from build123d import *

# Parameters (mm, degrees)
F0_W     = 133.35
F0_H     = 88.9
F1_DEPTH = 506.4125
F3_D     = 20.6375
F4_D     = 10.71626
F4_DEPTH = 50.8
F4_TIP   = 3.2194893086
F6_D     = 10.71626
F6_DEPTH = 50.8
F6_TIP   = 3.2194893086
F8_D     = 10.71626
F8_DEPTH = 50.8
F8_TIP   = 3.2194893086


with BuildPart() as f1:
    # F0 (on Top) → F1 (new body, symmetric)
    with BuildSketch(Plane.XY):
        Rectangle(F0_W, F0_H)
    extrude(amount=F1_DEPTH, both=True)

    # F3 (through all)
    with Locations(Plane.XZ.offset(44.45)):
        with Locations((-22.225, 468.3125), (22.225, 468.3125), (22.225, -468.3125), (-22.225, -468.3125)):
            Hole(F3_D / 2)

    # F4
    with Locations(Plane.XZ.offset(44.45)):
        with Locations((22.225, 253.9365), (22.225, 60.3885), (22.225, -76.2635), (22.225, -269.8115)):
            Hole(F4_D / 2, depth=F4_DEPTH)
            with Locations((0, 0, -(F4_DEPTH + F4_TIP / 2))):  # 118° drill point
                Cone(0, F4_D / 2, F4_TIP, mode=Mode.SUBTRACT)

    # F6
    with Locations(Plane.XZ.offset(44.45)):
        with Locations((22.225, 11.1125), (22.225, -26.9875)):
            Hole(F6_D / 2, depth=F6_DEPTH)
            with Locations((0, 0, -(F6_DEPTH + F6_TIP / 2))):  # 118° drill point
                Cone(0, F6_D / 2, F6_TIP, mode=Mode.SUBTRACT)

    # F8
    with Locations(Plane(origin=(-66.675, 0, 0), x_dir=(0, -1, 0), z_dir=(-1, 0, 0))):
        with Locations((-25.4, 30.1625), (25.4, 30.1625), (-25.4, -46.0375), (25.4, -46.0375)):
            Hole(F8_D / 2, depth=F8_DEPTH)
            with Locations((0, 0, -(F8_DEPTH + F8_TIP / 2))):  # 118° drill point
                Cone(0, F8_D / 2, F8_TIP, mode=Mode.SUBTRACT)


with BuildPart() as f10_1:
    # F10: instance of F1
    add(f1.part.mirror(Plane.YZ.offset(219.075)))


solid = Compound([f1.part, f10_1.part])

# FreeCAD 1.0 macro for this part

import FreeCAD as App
import Part
import Sketcher

V = App.Vector
Q = App.Units.Quantity

doc = App.newDocument("Part")
body = doc.addObject("PartDesign::Body", "Body")

# Sketch on XY plane
sketch1 = body.newObject("Sketcher::SketchObject", "Sketch")
sketch1.AttachmentSupport = (doc.getObject("XY_Plane"), [""])
sketch1.MapMode = "FlatFace"
sketch1.addGeometry([
    Part.LineSegment(V(-67, 44, 0), V(-67, -44, 0)),
    Part.LineSegment(V(-67, -44, 0), V(67, -44, 0)),
    Part.LineSegment(V(67, -44, 0), V(67, 44, 0)),
    Part.LineSegment(V(67, 44, 0), V(-67, 44, 0)),
], False)
sketch1.addConstraint([
    Sketcher.Constraint("Coincident", 0, 2, 1, 1),
    Sketcher.Constraint("Coincident", 1, 2, 2, 1),
    Sketcher.Constraint("Coincident", 2, 2, 3, 1),
    Sketcher.Constraint("Coincident", 3, 2, 0, 1),
    Sketcher.Constraint("Vertical", 0),
    Sketcher.Constraint("Horizontal", 1),
    Sketcher.Constraint("Vertical", 2),
    Sketcher.Constraint("Horizontal", 3),
    Sketcher.Constraint("Symmetric", 0, 2, 2, 2, -1, 1),
    Sketcher.Constraint("DistanceY", 0, 2, 0, 1, Q("3.5 in")),
    Sketcher.Constraint("DistanceX", 1, 1, 1, 2, Q("5.25 in")),
])
pad1 = body.newObject("PartDesign::Pad", "Pad")
pad1.Profile = sketch1
pad1.Length = Q("39.875 in")
pad1.Midplane = True

# Sketch on XZ plane
sketch2 = body.newObject("Sketcher::SketchObject", "Sketch001")
sketch2.AttachmentSupport = (doc.getObject("XZ_Plane"), [""])
sketch2.MapMode = "FlatFace"
sketch2.AttachmentOffset = App.Placement(V(0, 0, 1.75 * 25.4), App.Rotation())
sketch2.addGeometry([
    Part.Circle(V(-22, 468, 0), V(0, 0, 1), 10),
    Part.Circle(V(22, 468, 0), V(0, 0, 1), 10),
    Part.Circle(V(22, -468, 0), V(0, 0, 1), 10),
    Part.Circle(V(-22, -468, 0), V(0, 0, 1), 10),
], False)
sketch2.addConstraint([
    Sketcher.Constraint("Equal", 0, 1),
    Sketcher.Constraint("Equal", 1, 2),
    Sketcher.Constraint("Equal", 2, 3),
    Sketcher.Constraint("Symmetric", 0, 3, 2, 3, -1, 1),
    Sketcher.Constraint("Symmetric", 1, 3, 3, 3, -1, 1),
    Sketcher.Constraint("Symmetric", 0, 3, 1, 3, -2),
    Sketcher.Constraint("Diameter", 0, Q("0.8125 in")),
    Sketcher.Constraint("DistanceX", 0, 3, 1, 3, Q("1.75 in")),
    Sketcher.Constraint("DistanceY", -1, 1, 0, 3, Q("18.4375 in")),
])
doc.recompute()
hole = body.newObject("PartDesign::Hole", "Hole")
hole.Profile = sketch2
hole.ThreadType = "None"
hole.Diameter = Q("0.8125 in")
hole.DepthType = "ThroughAll"

# Sketch on XZ plane
sketch3 = body.newObject("Sketcher::SketchObject", "Sketch002")
sketch3.AttachmentSupport = (doc.getObject("XZ_Plane"), [""])
sketch3.MapMode = "FlatFace"
sketch3.AttachmentOffset = App.Placement(V(0, 0, 1.75 * 25.4), App.Rotation())
sketch3.addGeometry([
    Part.Circle(V(22, 254, 0), V(0, 0, 1), 5),
    Part.Circle(V(22, 60, 0), V(0, 0, 1), 5),
    Part.Circle(V(22, -76, 0), V(0, 0, 1), 5),
    Part.Circle(V(22, -270, 0), V(0, 0, 1), 5),
], False)
sketch3.addConstraint([
    Sketcher.Constraint("Equal", 0, 1),
    Sketcher.Constraint("Equal", 1, 2),
    Sketcher.Constraint("Equal", 2, 3),
    Sketcher.Constraint("Vertical", 0, 3, 1, 3),
    Sketcher.Constraint("Vertical", 1, 3, 2, 3),
    Sketcher.Constraint("Vertical", 2, 3, 3, 3),
    Sketcher.Constraint("DistanceY", 2, 3, 0, 3, Q("13 in")),
    Sketcher.Constraint("DistanceY", 3, 3, 1, 3, Q("13 in")),
    Sketcher.Constraint("Diameter", 0, Q("0.4219 in")),
    Sketcher.Constraint("DistanceY", 1, 3, 0, 3, Q("7.62 in")),
    Sketcher.Constraint("DistanceX", -1, 1, 0, 3, Q("0.875 in")),
    Sketcher.Constraint("DistanceY", -1, 1, 0, 3, Q("9.9975 in")),
])
doc.recompute()
hole2 = body.newObject("PartDesign::Hole", "Hole001")
hole2.Profile = sketch3
hole2.ThreadType = "None"
hole2.Diameter = Q("0.4219 in")
hole2.DepthType = "Dimension"
hole2.Depth = Q("2 in")
hole2.DrillPoint = "Angled"
hole2.DrillPointAngle = 118

# Sketch on XZ plane
sketch4 = body.newObject("Sketcher::SketchObject", "Sketch003")
sketch4.AttachmentSupport = (doc.getObject("XZ_Plane"), [""])
sketch4.MapMode = "FlatFace"
sketch4.AttachmentOffset = App.Placement(V(0, 0, 1.75 * 25.4), App.Rotation())
sketch4.addGeometry([
    Part.Circle(V(22, 11, 0), V(0, 0, 1), 5),
    Part.Circle(V(22, -27, 0), V(0, 0, 1), 5),
], False)
sketch4.addConstraint([
    Sketcher.Constraint("Equal", 0, 1),
    Sketcher.Constraint("Vertical", 0, 3, 1, 3),
    Sketcher.Constraint("Diameter", 0, Q("0.4219 in")),
    Sketcher.Constraint("DistanceY", 1, 3, 0, 3, Q("1.5 in")),
    Sketcher.Constraint("DistanceX", -1, 1, 0, 3, Q("0.875 in")),
    Sketcher.Constraint("DistanceY", -1, 1, 0, 3, Q("0.4375 in")),
])
doc.recompute()
hole3 = body.newObject("PartDesign::Hole", "Hole002")
hole3.Profile = sketch4
hole3.ThreadType = "None"
hole3.Diameter = Q("0.4219 in")
hole3.DepthType = "Dimension"
hole3.Depth = Q("2 in")
hole3.DrillPoint = "Angled"
hole3.DrillPointAngle = 118

# Sketch on YZ plane
sketch5 = body.newObject("Sketcher::SketchObject", "Sketch004")
sketch5.AttachmentSupport = (doc.getObject("YZ_Plane"), [""])
sketch5.MapMode = "FlatFace"
sketch5.AttachmentOffset = App.Placement(V(0, 0, -2.625 * 25.4), App.Rotation())
sketch5.addGeometry([
    Part.Circle(V(25, 30, 0), V(0, 0, 1), 5),
    Part.Circle(V(-25, 30, 0), V(0, 0, 1), 5),
    Part.Circle(V(25, -46, 0), V(0, 0, 1), 5),
    Part.Circle(V(-25, -46, 0), V(0, 0, 1), 5),
], False)
sketch5.addConstraint([
    Sketcher.Constraint("Equal", 0, 1),
    Sketcher.Constraint("Equal", 1, 2),
    Sketcher.Constraint("Equal", 2, 3),
    Sketcher.Constraint("Symmetric", 0, 3, 1, 3, -2),
    Sketcher.Constraint("Symmetric", 2, 3, 3, 3, -2),
    Sketcher.Constraint("Vertical", 0, 3, 2, 3),
    Sketcher.Constraint("DistanceX", -1, 1, 0, 3, Q("1 in")),
    Sketcher.Constraint("DistanceY", 2, 3, 0, 3, Q("3 in")),
    Sketcher.Constraint("Diameter", 0, Q("0.4219 in")),
    Sketcher.Constraint("DistanceY", -1, 1, 0, 3, Q("1.1875 in")),
])
doc.recompute()
hole4 = body.newObject("PartDesign::Hole", "Hole003")
hole4.Profile = sketch5
hole4.ThreadType = "None"
hole4.Diameter = Q("0.4219 in")
hole4.DepthType = "Dimension"
hole4.Depth = Q("2 in")
hole4.DrillPoint = "Angled"
hole4.DrillPointAngle = 118
hole4.Reversed = True
body2 = doc.addObject("PartDesign::Body", "Body001")
doc.recompute()

mirroring = doc.addObject("Part::Mirroring", "Mirroring")
mirroring.Source = body
mirroring.Base = V(219.075, 0, 0)
mirroring.Normal = V(1, 0, 0)
body2.BaseFeature = mirroring
doc.recompute()
mirroring.Visibility = False

doc.recompute()
